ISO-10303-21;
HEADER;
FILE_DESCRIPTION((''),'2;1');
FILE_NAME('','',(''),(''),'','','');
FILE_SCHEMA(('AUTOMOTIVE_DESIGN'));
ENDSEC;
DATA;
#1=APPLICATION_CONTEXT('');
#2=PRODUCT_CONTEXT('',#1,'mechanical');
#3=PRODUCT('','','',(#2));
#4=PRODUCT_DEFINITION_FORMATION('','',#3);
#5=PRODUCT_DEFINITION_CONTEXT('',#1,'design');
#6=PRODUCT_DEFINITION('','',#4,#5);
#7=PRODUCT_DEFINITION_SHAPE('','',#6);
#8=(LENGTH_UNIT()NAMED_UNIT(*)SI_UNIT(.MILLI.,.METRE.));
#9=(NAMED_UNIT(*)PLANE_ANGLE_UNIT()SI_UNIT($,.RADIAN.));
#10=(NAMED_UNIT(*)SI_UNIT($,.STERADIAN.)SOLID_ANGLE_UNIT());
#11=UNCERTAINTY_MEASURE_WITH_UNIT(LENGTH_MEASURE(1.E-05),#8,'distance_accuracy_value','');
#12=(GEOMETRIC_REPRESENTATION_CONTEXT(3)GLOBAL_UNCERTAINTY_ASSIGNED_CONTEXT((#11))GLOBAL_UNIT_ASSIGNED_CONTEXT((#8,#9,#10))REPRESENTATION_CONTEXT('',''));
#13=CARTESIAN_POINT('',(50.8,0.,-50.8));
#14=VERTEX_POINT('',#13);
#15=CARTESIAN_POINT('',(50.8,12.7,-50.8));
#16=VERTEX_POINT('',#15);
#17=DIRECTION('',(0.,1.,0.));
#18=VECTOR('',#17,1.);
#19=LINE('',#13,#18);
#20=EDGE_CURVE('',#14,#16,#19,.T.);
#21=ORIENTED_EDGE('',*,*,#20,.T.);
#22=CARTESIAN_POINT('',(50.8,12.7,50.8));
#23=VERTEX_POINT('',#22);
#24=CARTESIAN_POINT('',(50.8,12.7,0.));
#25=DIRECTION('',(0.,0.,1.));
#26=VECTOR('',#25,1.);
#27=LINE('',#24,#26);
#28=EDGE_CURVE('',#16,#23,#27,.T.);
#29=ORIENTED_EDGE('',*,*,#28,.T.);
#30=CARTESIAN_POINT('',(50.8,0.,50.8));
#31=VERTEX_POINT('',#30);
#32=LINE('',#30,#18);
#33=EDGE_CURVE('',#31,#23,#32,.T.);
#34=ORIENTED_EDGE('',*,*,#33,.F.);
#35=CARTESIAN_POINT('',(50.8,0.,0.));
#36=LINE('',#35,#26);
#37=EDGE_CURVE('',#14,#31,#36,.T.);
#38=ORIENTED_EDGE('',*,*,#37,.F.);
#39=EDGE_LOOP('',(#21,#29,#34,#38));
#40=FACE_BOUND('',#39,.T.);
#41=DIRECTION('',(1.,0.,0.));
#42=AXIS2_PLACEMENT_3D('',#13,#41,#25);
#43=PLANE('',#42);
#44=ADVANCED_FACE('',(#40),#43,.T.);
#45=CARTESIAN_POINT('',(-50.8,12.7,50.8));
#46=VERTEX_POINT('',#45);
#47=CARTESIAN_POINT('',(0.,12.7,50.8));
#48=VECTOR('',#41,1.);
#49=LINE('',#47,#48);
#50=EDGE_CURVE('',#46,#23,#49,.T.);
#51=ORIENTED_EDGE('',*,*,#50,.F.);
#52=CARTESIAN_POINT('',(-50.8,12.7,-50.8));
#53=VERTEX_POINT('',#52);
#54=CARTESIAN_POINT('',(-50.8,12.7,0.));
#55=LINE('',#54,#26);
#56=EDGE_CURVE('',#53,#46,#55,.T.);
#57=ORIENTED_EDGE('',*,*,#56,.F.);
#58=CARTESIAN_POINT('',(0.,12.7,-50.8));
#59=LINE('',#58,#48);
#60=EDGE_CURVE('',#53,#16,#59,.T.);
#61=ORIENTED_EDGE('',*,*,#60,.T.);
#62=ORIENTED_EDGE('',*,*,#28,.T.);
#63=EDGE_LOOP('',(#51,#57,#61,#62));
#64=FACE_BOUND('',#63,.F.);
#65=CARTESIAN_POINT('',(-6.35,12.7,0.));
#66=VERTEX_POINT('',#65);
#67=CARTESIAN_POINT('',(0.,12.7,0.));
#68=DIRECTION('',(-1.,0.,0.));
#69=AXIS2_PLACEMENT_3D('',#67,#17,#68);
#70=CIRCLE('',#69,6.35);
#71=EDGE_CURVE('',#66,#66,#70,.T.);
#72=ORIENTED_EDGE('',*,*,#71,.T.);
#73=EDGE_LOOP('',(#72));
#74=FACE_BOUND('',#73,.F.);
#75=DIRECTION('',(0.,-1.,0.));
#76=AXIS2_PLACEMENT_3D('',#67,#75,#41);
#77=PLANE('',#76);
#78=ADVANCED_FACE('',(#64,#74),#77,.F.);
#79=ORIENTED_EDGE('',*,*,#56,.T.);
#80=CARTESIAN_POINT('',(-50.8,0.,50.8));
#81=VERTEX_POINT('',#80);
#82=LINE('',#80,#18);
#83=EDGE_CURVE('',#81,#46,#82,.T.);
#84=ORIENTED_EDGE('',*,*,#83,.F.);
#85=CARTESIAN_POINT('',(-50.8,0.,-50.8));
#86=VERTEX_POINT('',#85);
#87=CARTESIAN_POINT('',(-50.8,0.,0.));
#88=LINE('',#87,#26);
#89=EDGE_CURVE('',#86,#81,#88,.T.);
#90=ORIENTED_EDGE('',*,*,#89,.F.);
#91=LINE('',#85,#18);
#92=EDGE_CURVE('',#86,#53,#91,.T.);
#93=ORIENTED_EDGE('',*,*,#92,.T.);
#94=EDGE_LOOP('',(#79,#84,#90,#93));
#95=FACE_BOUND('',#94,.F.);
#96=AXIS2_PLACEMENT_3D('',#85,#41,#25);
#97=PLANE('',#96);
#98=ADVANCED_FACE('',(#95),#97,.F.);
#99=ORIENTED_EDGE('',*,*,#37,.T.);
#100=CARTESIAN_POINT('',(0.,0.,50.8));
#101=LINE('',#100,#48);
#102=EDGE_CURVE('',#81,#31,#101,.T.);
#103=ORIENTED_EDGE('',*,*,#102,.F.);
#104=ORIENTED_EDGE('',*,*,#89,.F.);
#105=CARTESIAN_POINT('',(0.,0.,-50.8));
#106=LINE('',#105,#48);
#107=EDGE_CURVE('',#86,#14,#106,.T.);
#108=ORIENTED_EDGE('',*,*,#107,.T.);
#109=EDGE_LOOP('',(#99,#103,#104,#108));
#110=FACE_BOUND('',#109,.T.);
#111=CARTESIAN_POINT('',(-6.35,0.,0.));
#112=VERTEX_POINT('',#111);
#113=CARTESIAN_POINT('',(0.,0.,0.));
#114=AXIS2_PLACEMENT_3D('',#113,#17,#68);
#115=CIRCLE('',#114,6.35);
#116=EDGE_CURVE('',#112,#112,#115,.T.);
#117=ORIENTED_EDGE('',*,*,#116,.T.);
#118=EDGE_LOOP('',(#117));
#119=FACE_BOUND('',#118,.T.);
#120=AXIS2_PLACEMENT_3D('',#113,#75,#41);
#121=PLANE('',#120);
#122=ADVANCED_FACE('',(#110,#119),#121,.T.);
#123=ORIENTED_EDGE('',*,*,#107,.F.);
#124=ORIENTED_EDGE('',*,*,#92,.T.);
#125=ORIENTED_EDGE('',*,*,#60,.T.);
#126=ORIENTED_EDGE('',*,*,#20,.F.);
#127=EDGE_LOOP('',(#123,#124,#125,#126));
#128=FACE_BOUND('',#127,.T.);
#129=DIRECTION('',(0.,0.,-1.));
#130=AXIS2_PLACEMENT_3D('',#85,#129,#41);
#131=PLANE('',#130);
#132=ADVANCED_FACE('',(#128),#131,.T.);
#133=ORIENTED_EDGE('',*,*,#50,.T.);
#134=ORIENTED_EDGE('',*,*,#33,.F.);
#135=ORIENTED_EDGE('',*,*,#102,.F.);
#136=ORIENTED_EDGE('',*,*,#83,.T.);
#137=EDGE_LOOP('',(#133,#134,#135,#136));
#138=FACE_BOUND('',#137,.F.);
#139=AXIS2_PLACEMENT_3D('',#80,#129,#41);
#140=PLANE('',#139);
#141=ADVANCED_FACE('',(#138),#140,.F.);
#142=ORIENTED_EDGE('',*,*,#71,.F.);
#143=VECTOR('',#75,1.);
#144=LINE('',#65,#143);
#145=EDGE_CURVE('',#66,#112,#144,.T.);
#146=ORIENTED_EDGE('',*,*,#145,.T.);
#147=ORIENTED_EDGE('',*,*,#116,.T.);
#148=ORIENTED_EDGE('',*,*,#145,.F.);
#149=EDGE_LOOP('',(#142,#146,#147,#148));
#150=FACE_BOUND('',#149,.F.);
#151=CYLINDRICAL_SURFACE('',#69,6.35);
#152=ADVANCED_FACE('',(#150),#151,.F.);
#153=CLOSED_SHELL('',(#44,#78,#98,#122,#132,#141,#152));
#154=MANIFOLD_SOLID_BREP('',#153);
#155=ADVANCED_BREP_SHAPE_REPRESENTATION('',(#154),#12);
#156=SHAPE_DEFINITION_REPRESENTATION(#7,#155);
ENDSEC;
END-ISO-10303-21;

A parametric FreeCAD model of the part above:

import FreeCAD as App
import Part
import Sketcher
Q = App.Units.Quantity


def add_polygon(sketch, points):
    """Adds a closed chain of lines whose ends are joined by coincident constraints."""
    first, n = sketch.GeometryCount, len(points)
    for a, b in zip(points, points[1:] + points[:1]):
        sketch.addGeometry(Part.LineSegment(App.Vector(*a, 0), App.Vector(*b, 0)), False)
    for i in range(n):
        sketch.addConstraint(Sketcher.Constraint("Coincident", first + i, 2, first + (i + 1) % n, 1))

doc = App.newDocument("Part")
body = doc.addObject("PartDesign::Body", "Body")

sketch1 = doc.addObject("Sketcher::SketchObject", "Sketch")
body.addObject(sketch1)
sketch1.AttachmentSupport = (doc.XZ_Plane, [""])
sketch1.MapMode = "FlatFace"
add_polygon(sketch1, [(-50.8, 50.8), (-50.8, -50.8), (50.8, -50.8), (50.8, 50.8)])
sketch1.addConstraint(Sketcher.Constraint("Vertical", 0))
sketch1.addConstraint(Sketcher.Constraint("Horizontal", 1))
sketch1.addConstraint(Sketcher.Constraint("Vertical", 2))
sketch1.addConstraint(Sketcher.Constraint("Horizontal", 3))
sketch1.addConstraint(Sketcher.Constraint("Symmetric", 0, 2, 2, 2, -1, 1))
sketch1.addConstraint(Sketcher.Constraint("Equal", 3, 0))
sketch1.addConstraint(Sketcher.Constraint("DistanceX", 1, 1, 1, 2, Q("4 in")))
pad1 = doc.addObject("PartDesign::Pad", "Pad")
body.addObject(pad1)
pad1.Profile = sketch1
pad1.Length = Q("0.5 in")
pad1.Reversed = True

sketch2 = doc.addObject("Sketcher::SketchObject", "Sketch001")
body.addObject(sketch2)
sketch2.AttachmentSupport = (doc.XZ_Plane, [""])
sketch2.MapMode = "FlatFace"
sketch2.AttachmentOffset = App.Placement(App.Vector(0, 0, -0.5 * 25.4), App.Rotation())
sketch2.addGeometry(Part.Circle(App.Vector(0, 0, 0), App.Vector(0, 0, 1), 6.35), False)
sketch2.addConstraint(Sketcher.Constraint("Coincident", 0, 3, -1, 1))
sketch2.addConstraint(Sketcher.Constraint("Diameter", 0, Q("0.5 in")))
pocket1 = doc.addObject("PartDesign::Pocket", "Pocket")
body.addObject(pocket1)
pocket1.Profile = sketch2
pocket1.Type = "ThroughAll"
pocket1.Reversed = True

doc.recompute()
